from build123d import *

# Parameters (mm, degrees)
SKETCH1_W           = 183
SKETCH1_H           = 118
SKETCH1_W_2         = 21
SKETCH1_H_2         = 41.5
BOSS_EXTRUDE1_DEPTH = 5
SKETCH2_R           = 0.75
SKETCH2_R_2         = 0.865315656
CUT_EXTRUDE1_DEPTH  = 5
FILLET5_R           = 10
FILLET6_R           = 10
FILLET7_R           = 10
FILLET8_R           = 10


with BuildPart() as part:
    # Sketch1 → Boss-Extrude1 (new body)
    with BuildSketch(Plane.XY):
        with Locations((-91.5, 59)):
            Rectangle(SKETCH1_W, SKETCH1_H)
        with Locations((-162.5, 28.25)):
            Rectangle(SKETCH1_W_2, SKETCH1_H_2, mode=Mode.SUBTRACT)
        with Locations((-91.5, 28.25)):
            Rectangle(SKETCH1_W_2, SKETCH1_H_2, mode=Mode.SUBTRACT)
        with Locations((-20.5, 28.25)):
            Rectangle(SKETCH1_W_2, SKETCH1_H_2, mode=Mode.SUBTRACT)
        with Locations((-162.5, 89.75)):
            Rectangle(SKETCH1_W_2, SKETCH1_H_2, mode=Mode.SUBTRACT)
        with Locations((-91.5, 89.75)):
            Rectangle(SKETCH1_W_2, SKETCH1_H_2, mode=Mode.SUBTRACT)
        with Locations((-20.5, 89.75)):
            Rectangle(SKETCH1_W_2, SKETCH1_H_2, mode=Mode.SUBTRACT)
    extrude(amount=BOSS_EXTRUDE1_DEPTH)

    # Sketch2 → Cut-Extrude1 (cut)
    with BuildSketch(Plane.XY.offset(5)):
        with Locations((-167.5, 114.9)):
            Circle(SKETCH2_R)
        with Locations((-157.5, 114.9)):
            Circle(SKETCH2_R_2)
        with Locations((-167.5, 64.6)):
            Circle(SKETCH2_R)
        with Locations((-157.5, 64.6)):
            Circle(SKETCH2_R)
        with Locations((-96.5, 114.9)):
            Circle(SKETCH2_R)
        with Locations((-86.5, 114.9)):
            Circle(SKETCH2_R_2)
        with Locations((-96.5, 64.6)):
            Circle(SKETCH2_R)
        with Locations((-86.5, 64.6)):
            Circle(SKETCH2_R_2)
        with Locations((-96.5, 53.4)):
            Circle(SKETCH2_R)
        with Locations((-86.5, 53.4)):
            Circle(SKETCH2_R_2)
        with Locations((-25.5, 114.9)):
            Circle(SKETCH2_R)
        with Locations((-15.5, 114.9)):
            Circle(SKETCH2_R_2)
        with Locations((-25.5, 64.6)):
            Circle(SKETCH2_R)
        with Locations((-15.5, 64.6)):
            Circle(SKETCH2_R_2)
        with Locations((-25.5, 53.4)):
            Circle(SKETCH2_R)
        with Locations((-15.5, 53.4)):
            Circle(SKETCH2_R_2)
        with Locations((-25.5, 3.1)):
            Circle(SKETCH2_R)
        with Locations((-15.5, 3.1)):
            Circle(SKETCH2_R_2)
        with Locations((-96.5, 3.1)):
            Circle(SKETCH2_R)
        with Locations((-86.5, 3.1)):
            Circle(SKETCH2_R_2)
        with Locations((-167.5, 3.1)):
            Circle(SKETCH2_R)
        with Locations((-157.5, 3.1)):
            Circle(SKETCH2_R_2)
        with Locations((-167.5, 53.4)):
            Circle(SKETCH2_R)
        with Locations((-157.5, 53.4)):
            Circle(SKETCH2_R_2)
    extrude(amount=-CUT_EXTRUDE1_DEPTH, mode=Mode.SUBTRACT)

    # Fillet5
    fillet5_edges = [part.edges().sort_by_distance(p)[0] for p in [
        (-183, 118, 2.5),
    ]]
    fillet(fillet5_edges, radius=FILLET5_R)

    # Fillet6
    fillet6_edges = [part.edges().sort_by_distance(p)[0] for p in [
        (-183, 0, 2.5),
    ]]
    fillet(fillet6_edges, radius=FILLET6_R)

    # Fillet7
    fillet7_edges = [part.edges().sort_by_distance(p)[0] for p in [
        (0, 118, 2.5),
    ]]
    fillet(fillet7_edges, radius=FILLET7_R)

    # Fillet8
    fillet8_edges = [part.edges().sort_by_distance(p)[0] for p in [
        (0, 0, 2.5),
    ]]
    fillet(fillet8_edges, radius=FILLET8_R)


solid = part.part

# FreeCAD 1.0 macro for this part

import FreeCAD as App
import Part
import Sketcher
from FreeCAD import Vector


def edges_at(feature, points):
    """Names of the edges that pass closest to the given points."""
    edges = feature.Shape.Edges
    near = lambda p: min(range(len(edges)), key=lambda i: edges[i].distToShape(Part.Vertex(*p))[0])
    return sorted({f"Edge{near(p) + 1}" for p in points})


def add_polygon(sketch, points):
    """Adds a closed chain of lines whose ends are joined by coincident constraints."""
    first, n = sketch.GeometryCount, len(points)
    for a, b in zip(points, points[1:] + points[:1]):
        sketch.addGeometry(Part.LineSegment(App.Vector(*a, 0), App.Vector(*b, 0)), False)
    for i in range(n):
        sketch.addConstraint(Sketcher.Constraint("Coincident", first + i, 2, first + (i + 1) % n, 1))

doc = App.newDocument("Part")
body = doc.addObject("PartDesign::Body", "Body")

sketch1 = body.newObject("Sketcher::SketchObject", "Sketch")
sketch1.AttachmentSupport = (doc.getObject("XY_Plane"), [""])
sketch1.MapMode = "FlatFace"
add_polygon(sketch1, [(-183, 118), (-183, 0), (0, 0), (0, 118)])
add_polygon(sketch1, [(-152, 7.5), (-173, 7.5), (-173, 49), (-152, 49)])
add_polygon(sketch1, [(-81, 7.5), (-102, 7.5), (-102, 49), (-81, 49)])
add_polygon(sketch1, [(-10, 7.5), (-31, 7.5), (-31, 49), (-10, 49)])
add_polygon(sketch1, [(-152, 69), (-173, 69), (-173, 110.5), (-152, 110.5)])
add_polygon(sketch1, [(-81, 69), (-102, 69), (-102, 110.5), (-81, 110.5)])
add_polygon(sketch1, [(-10, 69), (-31, 69), (-31, 110.5), (-10, 110.5)])
sketch1.addConstraint(Sketcher.Constraint("Vertical", 0))
sketch1.addConstraint(Sketcher.Constraint("Horizontal", 1))
sketch1.addConstraint(Sketcher.Constraint("Vertical", 2))
sketch1.addConstraint(Sketcher.Constraint("Horizontal", 3))
sketch1.addConstraint(Sketcher.Constraint("Horizontal", 4))
sketch1.addConstraint(Sketcher.Constraint("Vertical", 5))
sketch1.addConstraint(Sketcher.Constraint("Horizontal", 6))
sketch1.addConstraint(Sketcher.Constraint("Vertical", 7))
sketch1.addConstraint(Sketcher.Constraint("Horizontal", 8))
sketch1.addConstraint(Sketcher.Constraint("Vertical", 9))
sketch1.addConstraint(Sketcher.Constraint("Horizontal", 10))
sketch1.addConstraint(Sketcher.Constraint("Vertical", 11))
sketch1.addConstraint(Sketcher.Constraint("Horizontal", 12))
sketch1.addConstraint(Sketcher.Constraint("Vertical", 13))
sketch1.addConstraint(Sketcher.Constraint("Horizontal", 14))
sketch1.addConstraint(Sketcher.Constraint("Vertical", 15))
sketch1.addConstraint(Sketcher.Constraint("Horizontal", 16))
sketch1.addConstraint(Sketcher.Constraint("Vertical", 17))
sketch1.addConstraint(Sketcher.Constraint("Horizontal", 18))
sketch1.addConstraint(Sketcher.Constraint("Vertical", 19))
sketch1.addConstraint(Sketcher.Constraint("Horizontal", 20))
sketch1.addConstraint(Sketcher.Constraint("Vertical", 21))
sketch1.addConstraint(Sketcher.Constraint("Horizontal", 22))
sketch1.addConstraint(Sketcher.Constraint("Vertical", 23))
sketch1.addConstraint(Sketcher.Constraint("Horizontal", 24))
sketch1.addConstraint(Sketcher.Constraint("Vertical", 25))
sketch1.addConstraint(Sketcher.Constraint("Horizontal", 26))
sketch1.addConstraint(Sketcher.Constraint("Vertical", 27))
sketch1.addConstraint(Sketcher.Constraint("Coincident", 1, 2, -1, 1))
sketch1.addConstraint(Sketcher.Constraint("Horizontal", 7, 2, 8, 2))
sketch1.addConstraint(Sketcher.Constraint("Horizontal", 6, 2, 9, 2))
sketch1.addConstraint(Sketcher.Constraint("Horizontal", 11, 2, 12, 2))
sketch1.addConstraint(Sketcher.Constraint("Horizontal", 10, 2, 13, 2))
sketch1.addConstraint(Sketcher.Constraint("Horizontal", 19, 2, 20, 2))
sketch1.addConstraint(Sketcher.Constraint("Horizontal", 18, 2, 21, 2))
sketch1.addConstraint(Sketcher.Constraint("Horizontal", 23, 2, 24, 2))
sketch1.addConstraint(Sketcher.Constraint("Horizontal", 22, 2, 25, 2))
sketch1.addConstraint(Sketcher.Constraint("Vertical", 5, 2, 16, 2))
sketch1.addConstraint(Sketcher.Constraint("Vertical", 7, 2, 18, 2))
sketch1.addConstraint(Sketcher.Constraint("Vertical", 9, 2, 20, 2))
sketch1.addConstraint(Sketcher.Constraint("Vertical", 11, 2, 22, 2))
sketch1.addConstraint(Sketcher.Constraint("Vertical", 13, 2, 24, 2))
sketch1.addConstraint(Sketcher.Constraint("Vertical", 15, 2, 26, 2))
sketch1.addConstraint(Sketcher.Constraint("Equal", 6, 8))
sketch1.addConstraint(Sketcher.Constraint("Equal", 10, 12))
sketch1.addConstraint(Sketcher.Constraint("Equal", 15, 17))
sketch1.addConstraint(Sketcher.Constraint("DistanceX", 1, 1, 1, 2, 183.0))
sketch1.addConstraint(Sketcher.Constraint("DistanceX", 4, 2, 4, 1, 21.0))
sketch1.addConstraint(Sketcher.Constraint("DistanceY", 0, 2, 0, 1, 118.0))
sketch1.addConstraint(Sketcher.Constraint("DistanceY", 5, 1, 5, 2, 41.5))
sketch1.addConstraint(Sketcher.Constraint("DistanceX", 4, 2, -1, 1, 173.0))
sketch1.addConstraint(Sketcher.Constraint("DistanceY", -1, 1, 5, 2, 49.0))
sketch1.addConstraint(Sketcher.Constraint("DistanceX", 8, 2, -1, 1, 102.0))
sketch1.addConstraint(Sketcher.Constraint("DistanceX", 12, 2, -1, 1, 31.0))
sketch1.addConstraint(Sketcher.Constraint("DistanceY", -1, 1, 16, 2, 69.0))
pad1 = body.newObject("PartDesign::Pad", "Pad")
pad1.Profile = sketch1
pad1.Length = 5

sketch2 = body.newObject("Sketcher::SketchObject", "Sketch001")
sketch2.AttachmentSupport = (doc.getObject("XY_Plane"), [""])
sketch2.MapMode = "FlatFace"
sketch2.AttachmentOffset = App.Placement(Vector(0, 0, 5), App.Rotation())
sketch2.addGeometry(Part.Circle(Vector(-167.5, 114.9, 0), Vector(0, 0, 1), 0.75), False)
sketch2.addGeometry(Part.Circle(Vector(-157.5, 114.9, 0), Vector(0, 0, 1), 0.865316), False)
sketch2.addGeometry(Part.Circle(Vector(-167.5, 64.6, 0), Vector(0, 0, 1), 0.75), False)
sketch2.addGeometry(Part.Circle(Vector(-157.5, 64.6, 0), Vector(0, 0, 1), 0.75), False)
sketch2.addGeometry(Part.Circle(Vector(-96.5, 114.9, 0), Vector(0, 0, 1), 0.75), False)
sketch2.addGeometry(Part.Circle(Vector(-86.5, 114.9, 0), Vector(0, 0, 1), 0.865316), False)
sketch2.addGeometry(Part.Circle(Vector(-96.5, 64.6, 0), Vector(0, 0, 1), 0.75), False)
sketch2.addGeometry(Part.Circle(Vector(-86.5, 64.6, 0), Vector(0, 0, 1), 0.865316), False)
sketch2.addGeometry(Part.Circle(Vector(-96.5, 53.4, 0), Vector(0, 0, 1), 0.75), False)
sketch2.addGeometry(Part.Circle(Vector(-86.5, 53.4, 0), Vector(0, 0, 1), 0.865316), False)
sketch2.addGeometry(Part.Circle(Vector(-25.5, 114.9, 0), Vector(0, 0, 1), 0.75), False)
sketch2.addGeometry(Part.Circle(Vector(-15.5, 114.9, 0), Vector(0, 0, 1), 0.865316), False)
sketch2.addGeometry(Part.Circle(Vector(-25.5, 64.6, 0), Vector(0, 0, 1), 0.75), False)
sketch2.addGeometry(Part.Circle(Vector(-15.5, 64.6, 0), Vector(0, 0, 1), 0.865316), False)
sketch2.addGeometry(Part.Circle(Vector(-25.5, 53.4, 0), Vector(0, 0, 1), 0.75), False)
sketch2.addGeometry(Part.Circle(Vector(-15.5, 53.4, 0), Vector(0, 0, 1), 0.865316), False)
sketch2.addGeometry(Part.Circle(Vector(-25.5, 3.1, 0), Vector(0, 0, 1), 0.75), False)
sketch2.addGeometry(Part.Circle(Vector(-15.5, 3.1, 0), Vector(0, 0, 1), 0.865316), False)
sketch2.addGeometry(Part.Circle(Vector(-96.5, 3.1, 0), Vector(0, 0, 1), 0.75), False)
sketch2.addGeometry(Part.Circle(Vector(-86.5, 3.1, 0), Vector(0, 0, 1), 0.865316), False)
sketch2.addGeometry(Part.Circle(Vector(-167.5, 3.1, 0), Vector(0, 0, 1), 0.75), False)
sketch2.addGeometry(Part.Circle(Vector(-157.5, 3.1, 0), Vector(0, 0, 1), 0.865316), False)
sketch2.addGeometry(Part.Circle(Vector(-167.5, 53.4, 0), Vector(0, 0, 1), 0.75), False)
sketch2.addGeometry(Part.Circle(Vector(-157.5, 53.4, 0), Vector(0, 0, 1), 0.865316), False)
sketch2.addConstraint(Sketcher.Constraint("Equal", 0, 2))
sketch2.addConstraint(Sketcher.Constraint("Equal", 2, 3))
sketch2.addConstraint(Sketcher.Constraint("Equal", 3, 4))
sketch2.addConstraint(Sketcher.Constraint("Equal", 1, 5))
sketch2.addConstraint(Sketcher.Constraint("Equal", 4, 6))
sketch2.addConstraint(Sketcher.Constraint("Equal", 5, 7))
sketch2.addConstraint(Sketcher.Constraint("Equal", 6, 8))
sketch2.addConstraint(Sketcher.Constraint("Equal", 7, 9))
sketch2.addConstraint(Sketcher.Constraint("Equal", 8, 10))
sketch2.addConstraint(Sketcher.Constraint("Equal", 9, 11))
sketch2.addConstraint(Sketcher.Constraint("Equal", 10, 12))
sketch2.addConstraint(Sketcher.Constraint("Equal", 11, 13))
sketch2.addConstraint(Sketcher.Constraint("Equal", 12, 14))
sketch2.addConstraint(Sketcher.Constraint("Equal", 13, 15))
sketch2.addConstraint(Sketcher.Constraint("Equal", 14, 16))
sketch2.addConstraint(Sketcher.Constraint("Equal", 15, 17))
sketch2.addConstraint(Sketcher.Constraint("Equal", 16, 18))
sketch2.addConstraint(Sketcher.Constraint("Equal", 17, 19))
sketch2.addConstraint(Sketcher.Constraint("Equal", 18, 20))
sketch2.addConstraint(Sketcher.Constraint("Equal", 19, 21))
sketch2.addConstraint(Sketcher.Constraint("Equal", 20, 22))
sketch2.addConstraint(Sketcher.Constraint("Equal", 21, 23))
sketch2.addConstraint(Sketcher.Constraint("Horizontal", 0, 3, 1, 3))
sketch2.addConstraint(Sketcher.Constraint("Horizontal", 2, 3, 3, 3))
sketch2.addConstraint(Sketcher.Constraint("Horizontal", 1, 3, 4, 3))
sketch2.addConstraint(Sketcher.Constraint("Horizontal", 4, 3, 5, 3))
sketch2.addConstraint(Sketcher.Constraint("Horizontal", 3, 3, 6, 3))
sketch2.addConstraint(Sketcher.Constraint("Horizontal", 6, 3, 7, 3))
sketch2.addConstraint(Sketcher.Constraint("Horizontal", 8, 3, 9, 3))
sketch2.addConstraint(Sketcher.Constraint("Horizontal", 5, 3, 10, 3))
sketch2.addConstraint(Sketcher.Constraint("Horizontal", 10, 3, 11, 3))
sketch2.addConstraint(Sketcher.Constraint("Horizontal", 7, 3, 12, 3))
sketch2.addConstraint(Sketcher.Constraint("Horizontal", 12, 3, 13, 3))
sketch2.addConstraint(Sketcher.Constraint("Horizontal", 9, 3, 14, 3))
sketch2.addConstraint(Sketcher.Constraint("Horizontal", 14, 3, 15, 3))
sketch2.addConstraint(Sketcher.Constraint("Horizontal", 16, 3, 17, 3))
sketch2.addConstraint(Sketcher.Constraint("Horizontal", 17, 3, 18, 3))
sketch2.addConstraint(Sketcher.Constraint("Horizontal", 18, 3, 19, 3))
sketch2.addConstraint(Sketcher.Constraint("Horizontal", 19, 3, 20, 3))
sketch2.addConstraint(Sketcher.Constraint("Horizontal", 20, 3, 21, 3))
sketch2.addConstraint(Sketcher.Constraint("Horizontal", 15, 3, 22, 3))
sketch2.addConstraint(Sketcher.Constraint("Horizontal", 22, 3, 23, 3))
sketch2.addConstraint(Sketcher.Constraint("Vertical", 0, 3, 2, 3))
sketch2.addConstraint(Sketcher.Constraint("Vertical", 1, 3, 3, 3))
sketch2.addConstraint(Sketcher.Constraint("Vertical", 4, 3, 6, 3))
sketch2.addConstraint(Sketcher.Constraint("Vertical", 5, 3, 7, 3))
sketch2.addConstraint(Sketcher.Constraint("Vertical", 6, 3, 8, 3))
sketch2.addConstraint(Sketcher.Constraint("Vertical", 7, 3, 9, 3))
sketch2.addConstraint(Sketcher.Constraint("Vertical", 10, 3, 12, 3))
sketch2.addConstraint(Sketcher.Constraint("Vertical", 11, 3, 13, 3))
sketch2.addConstraint(Sketcher.Constraint("Vertical", 12, 3, 14, 3))
sketch2.addConstraint(Sketcher.Constraint("Vertical", 13, 3, 15, 3))
sketch2.addConstraint(Sketcher.Constraint("Vertical", 14, 3, 16, 3))
sketch2.addConstraint(Sketcher.Constraint("Vertical", 15, 3, 17, 3))
sketch2.addConstraint(Sketcher.Constraint("Vertical", 8, 3, 18, 3))
sketch2.addConstraint(Sketcher.Constraint("Vertical", 9, 3, 19, 3))
sketch2.addConstraint(Sketcher.Constraint("Vertical", 2, 3, 20, 3))
sketch2.addConstraint(Sketcher.Constraint("Vertical", 3, 3, 21, 3))
sketch2.addConstraint(Sketcher.Constraint("Vertical", 20, 3, 22, 3))
sketch2.addConstraint(Sketcher.Constraint("Vertical", 21, 3, 23, 3))
sketch2.addConstraint(Sketcher.Constraint("Diameter", 0, 1.5))
sketch2.addConstraint(Sketcher.Constraint("DistanceX", 0, 3, 1, 3, 10.0))
sketch2.addConstraint(Sketcher.Constraint("DistanceX", 1, 3, 4, 3, 61.0))
sketch2.addConstraint(Sketcher.Constraint("DistanceX", 4, 3, 5, 3, 10.0))
sketch2.addConstraint(Sketcher.Constraint("DistanceX", 5, 3, 10, 3, 61.0))
sketch2.addConstraint(Sketcher.Constraint("DistanceX", 10, 3, 11, 3, 10.0))
sketch2.addConstraint(Sketcher.Constraint("DistanceX", 0, 3, -1, 1, 167.5))
sketch2.addConstraint(Sketcher.Constraint("DistanceY", -1, 1, 0, 3, 114.9))
sketch2.addConstraint(Sketcher.Constraint("DistanceY", -1, 1, 2, 3, 64.6))
sketch2.addConstraint(Sketcher.Constraint("DistanceY", -1, 1, 8, 3, 53.4))
sketch2.addConstraint(Sketcher.Constraint("DistanceY", -1, 1, 16, 3, 3.1))
sketch2.addConstraint(Sketcher.Constraint("Diameter", 1, 1.730631))
pocket1 = body.newObject("PartDesign::Pocket", "Pocket")
pocket1.Profile = sketch2
pocket1.Length = 5
doc.recompute()

fillet = body.newObject("PartDesign::Fillet", "Fillet")
fillet.Base = (pocket1, edges_at(pocket1, [(-183, 118, 2.5)]))
fillet.Radius = 10
doc.recompute()

fillet2 = body.newObject("PartDesign::Fillet", "Fillet001")
fillet2.Base = (fillet, edges_at(fillet, [(-183, 0, 2.5)]))
fillet2.Radius = 10
doc.recompute()

fillet3 = body.newObject("PartDesign::Fillet", "Fillet002")
fillet3.Base = (fillet2, edges_at(fillet2, [(0, 118, 2.5)]))
fillet3.Radius = 10
doc.recompute()

fillet4 = body.newObject("PartDesign::Fillet", "Fillet003")
fillet4.Base = (fillet3, edges_at(fillet3, [(0, 0, 2.5)]))
fillet4.Radius = 10

doc.recompute()
